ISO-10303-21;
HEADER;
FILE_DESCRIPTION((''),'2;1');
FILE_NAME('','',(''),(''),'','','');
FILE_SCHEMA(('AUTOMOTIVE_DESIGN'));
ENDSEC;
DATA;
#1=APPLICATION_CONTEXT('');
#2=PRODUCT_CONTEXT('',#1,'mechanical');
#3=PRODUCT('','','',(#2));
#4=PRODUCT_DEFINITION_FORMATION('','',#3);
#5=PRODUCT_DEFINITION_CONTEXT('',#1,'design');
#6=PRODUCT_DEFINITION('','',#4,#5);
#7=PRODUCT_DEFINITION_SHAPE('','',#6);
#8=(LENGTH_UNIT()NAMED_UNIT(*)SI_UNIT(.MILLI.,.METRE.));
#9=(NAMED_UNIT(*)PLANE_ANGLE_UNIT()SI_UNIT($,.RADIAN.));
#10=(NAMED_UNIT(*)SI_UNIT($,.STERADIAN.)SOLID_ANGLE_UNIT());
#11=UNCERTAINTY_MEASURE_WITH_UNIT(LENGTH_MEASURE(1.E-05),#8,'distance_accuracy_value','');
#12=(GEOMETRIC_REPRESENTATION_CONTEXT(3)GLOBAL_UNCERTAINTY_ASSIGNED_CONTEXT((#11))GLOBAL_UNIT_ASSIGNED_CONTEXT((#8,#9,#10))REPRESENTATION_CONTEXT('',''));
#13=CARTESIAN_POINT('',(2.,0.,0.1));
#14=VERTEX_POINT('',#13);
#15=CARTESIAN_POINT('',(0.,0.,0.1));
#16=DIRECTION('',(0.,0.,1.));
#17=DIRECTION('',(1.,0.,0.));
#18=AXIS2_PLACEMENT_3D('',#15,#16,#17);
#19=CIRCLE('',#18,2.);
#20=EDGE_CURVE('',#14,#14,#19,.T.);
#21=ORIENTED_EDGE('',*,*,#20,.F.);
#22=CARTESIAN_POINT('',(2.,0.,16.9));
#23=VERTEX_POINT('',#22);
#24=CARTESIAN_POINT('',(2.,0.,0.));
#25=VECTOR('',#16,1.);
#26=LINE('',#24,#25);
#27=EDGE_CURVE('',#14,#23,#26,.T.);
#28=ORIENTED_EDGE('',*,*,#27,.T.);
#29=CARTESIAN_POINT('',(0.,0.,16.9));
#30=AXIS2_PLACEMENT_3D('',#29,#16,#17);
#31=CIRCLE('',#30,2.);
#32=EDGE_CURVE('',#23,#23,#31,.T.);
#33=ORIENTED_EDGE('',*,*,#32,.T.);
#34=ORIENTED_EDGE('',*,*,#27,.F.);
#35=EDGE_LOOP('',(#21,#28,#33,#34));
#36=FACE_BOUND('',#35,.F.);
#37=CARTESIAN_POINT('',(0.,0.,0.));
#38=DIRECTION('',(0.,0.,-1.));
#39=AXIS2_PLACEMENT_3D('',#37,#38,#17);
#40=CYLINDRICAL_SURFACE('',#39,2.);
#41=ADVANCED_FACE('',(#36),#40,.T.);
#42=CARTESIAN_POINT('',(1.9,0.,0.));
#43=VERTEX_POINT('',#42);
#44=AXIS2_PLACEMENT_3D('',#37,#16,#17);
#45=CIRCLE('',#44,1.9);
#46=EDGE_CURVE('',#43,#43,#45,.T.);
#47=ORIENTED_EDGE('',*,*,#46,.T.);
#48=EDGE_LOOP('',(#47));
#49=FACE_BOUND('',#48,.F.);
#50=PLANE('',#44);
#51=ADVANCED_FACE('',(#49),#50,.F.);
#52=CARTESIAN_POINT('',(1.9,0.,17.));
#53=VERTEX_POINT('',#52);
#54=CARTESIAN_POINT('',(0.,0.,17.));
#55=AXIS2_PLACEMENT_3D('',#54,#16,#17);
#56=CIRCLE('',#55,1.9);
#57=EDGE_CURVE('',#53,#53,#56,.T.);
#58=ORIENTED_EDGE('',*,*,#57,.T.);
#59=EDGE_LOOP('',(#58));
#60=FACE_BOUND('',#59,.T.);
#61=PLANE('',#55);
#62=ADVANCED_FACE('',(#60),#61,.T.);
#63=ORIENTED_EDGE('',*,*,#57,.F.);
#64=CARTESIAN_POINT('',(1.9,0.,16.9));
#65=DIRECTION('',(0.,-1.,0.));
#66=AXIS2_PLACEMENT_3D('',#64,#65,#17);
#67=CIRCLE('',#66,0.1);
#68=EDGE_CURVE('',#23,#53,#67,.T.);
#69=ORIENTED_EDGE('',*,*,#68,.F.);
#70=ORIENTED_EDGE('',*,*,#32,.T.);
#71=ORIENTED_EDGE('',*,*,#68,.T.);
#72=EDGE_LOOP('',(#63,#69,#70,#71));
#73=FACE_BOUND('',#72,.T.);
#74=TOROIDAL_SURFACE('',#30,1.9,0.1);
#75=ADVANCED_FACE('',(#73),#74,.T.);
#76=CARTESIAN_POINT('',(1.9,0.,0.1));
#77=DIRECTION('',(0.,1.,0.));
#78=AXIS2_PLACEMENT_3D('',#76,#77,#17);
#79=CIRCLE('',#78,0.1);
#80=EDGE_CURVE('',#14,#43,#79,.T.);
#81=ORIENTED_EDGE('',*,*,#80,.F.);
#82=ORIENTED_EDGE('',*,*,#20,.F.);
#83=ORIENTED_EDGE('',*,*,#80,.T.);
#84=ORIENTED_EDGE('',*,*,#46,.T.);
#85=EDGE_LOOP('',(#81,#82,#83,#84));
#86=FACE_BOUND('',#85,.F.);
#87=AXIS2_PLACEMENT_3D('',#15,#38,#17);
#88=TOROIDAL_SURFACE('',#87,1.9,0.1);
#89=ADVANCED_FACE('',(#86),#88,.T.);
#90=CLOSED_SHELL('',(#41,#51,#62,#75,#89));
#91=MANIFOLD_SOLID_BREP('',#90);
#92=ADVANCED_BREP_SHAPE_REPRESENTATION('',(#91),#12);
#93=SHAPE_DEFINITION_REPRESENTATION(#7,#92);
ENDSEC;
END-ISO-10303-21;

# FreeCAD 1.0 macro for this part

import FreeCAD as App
import Part
import Sketcher
from FreeCAD import Vector
Q = App.Units.Quantity


def edges_at(feature, points):
    """Names of the edges that pass closest to the given points."""
    edges = feature.Shape.Edges
    near = lambda p: min(range(len(edges)), key=lambda i: edges[i].distToShape(Part.Vertex(*p))[0])
    return sorted({f"Edge{near(p) + 1}" for p in points})

doc = App.newDocument("Part")
params = doc.addObject("Spreadsheet::Sheet", "Params")
for row, (alias, value) in enumerate([
    ("sketch1_diameter", "4 mm"),
    ("pad1_length", "17 mm"),
    ("fillet_radius", "0.1 mm"),
], start=1):
    params.set(f"A{row}", alias)
    params.set(f"B{row}", "=" + value)
    params.setAlias(f"B{row}", alias)

body = doc.addObject("PartDesign::Body", "Body")

# Sketch on XY plane
sketch1 = doc.addObject("Sketcher::SketchObject", "Sketch")
body.addObject(sketch1)
sketch1.AttachmentSupport = (doc.XY_Plane, [""])
sketch1.MapMode = "FlatFace"
sketch1.addGeometry(Part.Circle(Vector(0, 0, 0), Vector(0, 0, 1), 2), False)
sketch1.addConstraint([
    Sketcher.Constraint("Coincident", 0, 3, -1, 1),
    Sketcher.Constraint("Diameter", 0, Q("4 mm")),
])
sketch1.setExpression("Constraints[1]", "Params.sketch1_diameter")
pad1 = doc.addObject("PartDesign::Pad", "Pad")
body.addObject(pad1)
pad1.Profile = sketch1
pad1.setExpression("Length", "Params.pad1_length")
doc.recompute()

fillet = doc.addObject("PartDesign::Fillet", "Fillet")
body.addObject(fillet)
fillet.Base = (pad1, edges_at(pad1, [(-2, 0, 17), (-2, 0, 0)]))
fillet.setExpression("Radius", "Params.fillet_radius")

doc.recompute()
